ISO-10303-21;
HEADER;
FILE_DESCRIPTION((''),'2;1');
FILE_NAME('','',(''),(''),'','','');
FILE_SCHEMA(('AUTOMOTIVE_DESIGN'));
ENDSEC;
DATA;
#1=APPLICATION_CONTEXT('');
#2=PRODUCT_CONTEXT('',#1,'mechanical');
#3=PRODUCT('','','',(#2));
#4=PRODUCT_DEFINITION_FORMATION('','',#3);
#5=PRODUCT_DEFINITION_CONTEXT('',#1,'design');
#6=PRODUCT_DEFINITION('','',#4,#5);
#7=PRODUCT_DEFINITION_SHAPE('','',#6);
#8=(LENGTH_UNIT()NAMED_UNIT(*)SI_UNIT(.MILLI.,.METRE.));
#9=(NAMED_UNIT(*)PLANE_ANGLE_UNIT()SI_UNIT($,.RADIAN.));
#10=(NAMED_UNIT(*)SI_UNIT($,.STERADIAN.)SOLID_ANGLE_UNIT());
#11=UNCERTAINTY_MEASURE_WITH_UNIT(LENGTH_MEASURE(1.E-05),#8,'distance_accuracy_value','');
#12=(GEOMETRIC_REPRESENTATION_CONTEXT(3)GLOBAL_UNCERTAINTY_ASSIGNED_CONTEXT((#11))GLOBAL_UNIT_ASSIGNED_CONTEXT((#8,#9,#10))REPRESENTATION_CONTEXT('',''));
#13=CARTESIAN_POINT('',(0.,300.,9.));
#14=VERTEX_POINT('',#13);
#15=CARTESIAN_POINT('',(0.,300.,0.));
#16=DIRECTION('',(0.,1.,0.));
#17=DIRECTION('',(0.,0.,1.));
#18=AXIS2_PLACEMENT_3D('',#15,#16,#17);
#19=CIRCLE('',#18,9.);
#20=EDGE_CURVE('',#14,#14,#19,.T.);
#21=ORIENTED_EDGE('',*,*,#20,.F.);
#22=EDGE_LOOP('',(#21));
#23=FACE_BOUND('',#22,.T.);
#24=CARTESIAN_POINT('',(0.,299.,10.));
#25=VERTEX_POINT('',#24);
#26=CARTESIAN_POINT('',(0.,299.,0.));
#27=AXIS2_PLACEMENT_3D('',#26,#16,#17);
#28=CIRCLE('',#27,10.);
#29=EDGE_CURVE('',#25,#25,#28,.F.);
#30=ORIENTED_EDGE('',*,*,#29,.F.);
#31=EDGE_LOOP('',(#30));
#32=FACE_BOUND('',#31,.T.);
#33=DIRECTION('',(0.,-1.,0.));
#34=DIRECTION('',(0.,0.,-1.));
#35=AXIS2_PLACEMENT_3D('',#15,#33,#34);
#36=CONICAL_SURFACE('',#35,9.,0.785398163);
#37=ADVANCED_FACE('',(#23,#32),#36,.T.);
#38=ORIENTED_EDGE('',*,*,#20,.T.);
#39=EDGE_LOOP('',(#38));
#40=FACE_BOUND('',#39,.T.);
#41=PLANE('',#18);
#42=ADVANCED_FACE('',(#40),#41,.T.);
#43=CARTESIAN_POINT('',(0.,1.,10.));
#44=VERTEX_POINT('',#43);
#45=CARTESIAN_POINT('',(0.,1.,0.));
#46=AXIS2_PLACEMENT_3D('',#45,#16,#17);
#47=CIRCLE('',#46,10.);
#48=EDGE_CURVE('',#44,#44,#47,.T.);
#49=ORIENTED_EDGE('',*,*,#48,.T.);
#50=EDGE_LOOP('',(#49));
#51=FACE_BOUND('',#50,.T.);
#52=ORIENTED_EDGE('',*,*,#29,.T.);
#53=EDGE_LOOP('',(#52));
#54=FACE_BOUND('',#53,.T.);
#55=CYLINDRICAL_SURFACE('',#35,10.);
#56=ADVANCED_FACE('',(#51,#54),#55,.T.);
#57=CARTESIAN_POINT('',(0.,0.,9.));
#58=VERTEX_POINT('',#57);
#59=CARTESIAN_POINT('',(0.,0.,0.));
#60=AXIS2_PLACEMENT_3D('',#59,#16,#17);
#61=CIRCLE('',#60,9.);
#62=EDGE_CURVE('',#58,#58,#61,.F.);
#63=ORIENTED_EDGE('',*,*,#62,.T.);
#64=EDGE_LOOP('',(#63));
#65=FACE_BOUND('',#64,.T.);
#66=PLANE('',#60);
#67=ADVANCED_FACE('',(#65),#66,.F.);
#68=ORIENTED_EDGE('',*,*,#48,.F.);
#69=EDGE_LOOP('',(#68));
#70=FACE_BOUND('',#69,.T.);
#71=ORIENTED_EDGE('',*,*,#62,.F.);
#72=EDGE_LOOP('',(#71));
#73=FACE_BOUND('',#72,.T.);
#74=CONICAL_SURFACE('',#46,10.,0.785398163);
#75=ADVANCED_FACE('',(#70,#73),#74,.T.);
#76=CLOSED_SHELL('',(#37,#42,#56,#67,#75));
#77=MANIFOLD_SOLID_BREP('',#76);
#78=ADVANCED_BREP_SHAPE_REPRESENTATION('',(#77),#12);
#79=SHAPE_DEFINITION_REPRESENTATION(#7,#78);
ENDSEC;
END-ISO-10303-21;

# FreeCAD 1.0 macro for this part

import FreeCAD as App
import Part
import Sketcher
from FreeCAD import Vector


def edges_at(feature, points):
    """Names of the edges that pass closest to the given points."""
    edges = feature.Shape.Edges
    near = lambda p: min(range(len(edges)), key=lambda i: edges[i].distToShape(Part.Vertex(*p))[0])
    return sorted({f"Edge{near(p) + 1}" for p in points})

doc = App.newDocument("Part")
body = doc.addObject("PartDesign::Body", "Body")

sketch1 = body.newObject("Sketcher::SketchObject", "Sketch")
sketch1.AttachmentSupport = (doc.getObject("XZ_Plane"), [""])
sketch1.MapMode = "FlatFace"
sketch1.addGeometry(Part.Circle(Vector(0, 0, 0), Vector(0, 0, 1), 10), False)
sketch1.addConstraint(Sketcher.Constraint("Coincident", 0, 3, -1, 1))
sketch1.addConstraint(Sketcher.Constraint("Diameter", 0, 20.0))
pad1 = body.newObject("PartDesign::Pad", "Pad")
pad1.Profile = sketch1
pad1.Length = 300
pad1.Reversed = True
doc.recompute()

chamfer = body.newObject("PartDesign::Chamfer", "Chamfer")
chamfer.Base = (pad1, edges_at(pad1, [(-10, 0, 0), (-10, 300, 0)]))
chamfer.Size = 1

doc.recompute()
